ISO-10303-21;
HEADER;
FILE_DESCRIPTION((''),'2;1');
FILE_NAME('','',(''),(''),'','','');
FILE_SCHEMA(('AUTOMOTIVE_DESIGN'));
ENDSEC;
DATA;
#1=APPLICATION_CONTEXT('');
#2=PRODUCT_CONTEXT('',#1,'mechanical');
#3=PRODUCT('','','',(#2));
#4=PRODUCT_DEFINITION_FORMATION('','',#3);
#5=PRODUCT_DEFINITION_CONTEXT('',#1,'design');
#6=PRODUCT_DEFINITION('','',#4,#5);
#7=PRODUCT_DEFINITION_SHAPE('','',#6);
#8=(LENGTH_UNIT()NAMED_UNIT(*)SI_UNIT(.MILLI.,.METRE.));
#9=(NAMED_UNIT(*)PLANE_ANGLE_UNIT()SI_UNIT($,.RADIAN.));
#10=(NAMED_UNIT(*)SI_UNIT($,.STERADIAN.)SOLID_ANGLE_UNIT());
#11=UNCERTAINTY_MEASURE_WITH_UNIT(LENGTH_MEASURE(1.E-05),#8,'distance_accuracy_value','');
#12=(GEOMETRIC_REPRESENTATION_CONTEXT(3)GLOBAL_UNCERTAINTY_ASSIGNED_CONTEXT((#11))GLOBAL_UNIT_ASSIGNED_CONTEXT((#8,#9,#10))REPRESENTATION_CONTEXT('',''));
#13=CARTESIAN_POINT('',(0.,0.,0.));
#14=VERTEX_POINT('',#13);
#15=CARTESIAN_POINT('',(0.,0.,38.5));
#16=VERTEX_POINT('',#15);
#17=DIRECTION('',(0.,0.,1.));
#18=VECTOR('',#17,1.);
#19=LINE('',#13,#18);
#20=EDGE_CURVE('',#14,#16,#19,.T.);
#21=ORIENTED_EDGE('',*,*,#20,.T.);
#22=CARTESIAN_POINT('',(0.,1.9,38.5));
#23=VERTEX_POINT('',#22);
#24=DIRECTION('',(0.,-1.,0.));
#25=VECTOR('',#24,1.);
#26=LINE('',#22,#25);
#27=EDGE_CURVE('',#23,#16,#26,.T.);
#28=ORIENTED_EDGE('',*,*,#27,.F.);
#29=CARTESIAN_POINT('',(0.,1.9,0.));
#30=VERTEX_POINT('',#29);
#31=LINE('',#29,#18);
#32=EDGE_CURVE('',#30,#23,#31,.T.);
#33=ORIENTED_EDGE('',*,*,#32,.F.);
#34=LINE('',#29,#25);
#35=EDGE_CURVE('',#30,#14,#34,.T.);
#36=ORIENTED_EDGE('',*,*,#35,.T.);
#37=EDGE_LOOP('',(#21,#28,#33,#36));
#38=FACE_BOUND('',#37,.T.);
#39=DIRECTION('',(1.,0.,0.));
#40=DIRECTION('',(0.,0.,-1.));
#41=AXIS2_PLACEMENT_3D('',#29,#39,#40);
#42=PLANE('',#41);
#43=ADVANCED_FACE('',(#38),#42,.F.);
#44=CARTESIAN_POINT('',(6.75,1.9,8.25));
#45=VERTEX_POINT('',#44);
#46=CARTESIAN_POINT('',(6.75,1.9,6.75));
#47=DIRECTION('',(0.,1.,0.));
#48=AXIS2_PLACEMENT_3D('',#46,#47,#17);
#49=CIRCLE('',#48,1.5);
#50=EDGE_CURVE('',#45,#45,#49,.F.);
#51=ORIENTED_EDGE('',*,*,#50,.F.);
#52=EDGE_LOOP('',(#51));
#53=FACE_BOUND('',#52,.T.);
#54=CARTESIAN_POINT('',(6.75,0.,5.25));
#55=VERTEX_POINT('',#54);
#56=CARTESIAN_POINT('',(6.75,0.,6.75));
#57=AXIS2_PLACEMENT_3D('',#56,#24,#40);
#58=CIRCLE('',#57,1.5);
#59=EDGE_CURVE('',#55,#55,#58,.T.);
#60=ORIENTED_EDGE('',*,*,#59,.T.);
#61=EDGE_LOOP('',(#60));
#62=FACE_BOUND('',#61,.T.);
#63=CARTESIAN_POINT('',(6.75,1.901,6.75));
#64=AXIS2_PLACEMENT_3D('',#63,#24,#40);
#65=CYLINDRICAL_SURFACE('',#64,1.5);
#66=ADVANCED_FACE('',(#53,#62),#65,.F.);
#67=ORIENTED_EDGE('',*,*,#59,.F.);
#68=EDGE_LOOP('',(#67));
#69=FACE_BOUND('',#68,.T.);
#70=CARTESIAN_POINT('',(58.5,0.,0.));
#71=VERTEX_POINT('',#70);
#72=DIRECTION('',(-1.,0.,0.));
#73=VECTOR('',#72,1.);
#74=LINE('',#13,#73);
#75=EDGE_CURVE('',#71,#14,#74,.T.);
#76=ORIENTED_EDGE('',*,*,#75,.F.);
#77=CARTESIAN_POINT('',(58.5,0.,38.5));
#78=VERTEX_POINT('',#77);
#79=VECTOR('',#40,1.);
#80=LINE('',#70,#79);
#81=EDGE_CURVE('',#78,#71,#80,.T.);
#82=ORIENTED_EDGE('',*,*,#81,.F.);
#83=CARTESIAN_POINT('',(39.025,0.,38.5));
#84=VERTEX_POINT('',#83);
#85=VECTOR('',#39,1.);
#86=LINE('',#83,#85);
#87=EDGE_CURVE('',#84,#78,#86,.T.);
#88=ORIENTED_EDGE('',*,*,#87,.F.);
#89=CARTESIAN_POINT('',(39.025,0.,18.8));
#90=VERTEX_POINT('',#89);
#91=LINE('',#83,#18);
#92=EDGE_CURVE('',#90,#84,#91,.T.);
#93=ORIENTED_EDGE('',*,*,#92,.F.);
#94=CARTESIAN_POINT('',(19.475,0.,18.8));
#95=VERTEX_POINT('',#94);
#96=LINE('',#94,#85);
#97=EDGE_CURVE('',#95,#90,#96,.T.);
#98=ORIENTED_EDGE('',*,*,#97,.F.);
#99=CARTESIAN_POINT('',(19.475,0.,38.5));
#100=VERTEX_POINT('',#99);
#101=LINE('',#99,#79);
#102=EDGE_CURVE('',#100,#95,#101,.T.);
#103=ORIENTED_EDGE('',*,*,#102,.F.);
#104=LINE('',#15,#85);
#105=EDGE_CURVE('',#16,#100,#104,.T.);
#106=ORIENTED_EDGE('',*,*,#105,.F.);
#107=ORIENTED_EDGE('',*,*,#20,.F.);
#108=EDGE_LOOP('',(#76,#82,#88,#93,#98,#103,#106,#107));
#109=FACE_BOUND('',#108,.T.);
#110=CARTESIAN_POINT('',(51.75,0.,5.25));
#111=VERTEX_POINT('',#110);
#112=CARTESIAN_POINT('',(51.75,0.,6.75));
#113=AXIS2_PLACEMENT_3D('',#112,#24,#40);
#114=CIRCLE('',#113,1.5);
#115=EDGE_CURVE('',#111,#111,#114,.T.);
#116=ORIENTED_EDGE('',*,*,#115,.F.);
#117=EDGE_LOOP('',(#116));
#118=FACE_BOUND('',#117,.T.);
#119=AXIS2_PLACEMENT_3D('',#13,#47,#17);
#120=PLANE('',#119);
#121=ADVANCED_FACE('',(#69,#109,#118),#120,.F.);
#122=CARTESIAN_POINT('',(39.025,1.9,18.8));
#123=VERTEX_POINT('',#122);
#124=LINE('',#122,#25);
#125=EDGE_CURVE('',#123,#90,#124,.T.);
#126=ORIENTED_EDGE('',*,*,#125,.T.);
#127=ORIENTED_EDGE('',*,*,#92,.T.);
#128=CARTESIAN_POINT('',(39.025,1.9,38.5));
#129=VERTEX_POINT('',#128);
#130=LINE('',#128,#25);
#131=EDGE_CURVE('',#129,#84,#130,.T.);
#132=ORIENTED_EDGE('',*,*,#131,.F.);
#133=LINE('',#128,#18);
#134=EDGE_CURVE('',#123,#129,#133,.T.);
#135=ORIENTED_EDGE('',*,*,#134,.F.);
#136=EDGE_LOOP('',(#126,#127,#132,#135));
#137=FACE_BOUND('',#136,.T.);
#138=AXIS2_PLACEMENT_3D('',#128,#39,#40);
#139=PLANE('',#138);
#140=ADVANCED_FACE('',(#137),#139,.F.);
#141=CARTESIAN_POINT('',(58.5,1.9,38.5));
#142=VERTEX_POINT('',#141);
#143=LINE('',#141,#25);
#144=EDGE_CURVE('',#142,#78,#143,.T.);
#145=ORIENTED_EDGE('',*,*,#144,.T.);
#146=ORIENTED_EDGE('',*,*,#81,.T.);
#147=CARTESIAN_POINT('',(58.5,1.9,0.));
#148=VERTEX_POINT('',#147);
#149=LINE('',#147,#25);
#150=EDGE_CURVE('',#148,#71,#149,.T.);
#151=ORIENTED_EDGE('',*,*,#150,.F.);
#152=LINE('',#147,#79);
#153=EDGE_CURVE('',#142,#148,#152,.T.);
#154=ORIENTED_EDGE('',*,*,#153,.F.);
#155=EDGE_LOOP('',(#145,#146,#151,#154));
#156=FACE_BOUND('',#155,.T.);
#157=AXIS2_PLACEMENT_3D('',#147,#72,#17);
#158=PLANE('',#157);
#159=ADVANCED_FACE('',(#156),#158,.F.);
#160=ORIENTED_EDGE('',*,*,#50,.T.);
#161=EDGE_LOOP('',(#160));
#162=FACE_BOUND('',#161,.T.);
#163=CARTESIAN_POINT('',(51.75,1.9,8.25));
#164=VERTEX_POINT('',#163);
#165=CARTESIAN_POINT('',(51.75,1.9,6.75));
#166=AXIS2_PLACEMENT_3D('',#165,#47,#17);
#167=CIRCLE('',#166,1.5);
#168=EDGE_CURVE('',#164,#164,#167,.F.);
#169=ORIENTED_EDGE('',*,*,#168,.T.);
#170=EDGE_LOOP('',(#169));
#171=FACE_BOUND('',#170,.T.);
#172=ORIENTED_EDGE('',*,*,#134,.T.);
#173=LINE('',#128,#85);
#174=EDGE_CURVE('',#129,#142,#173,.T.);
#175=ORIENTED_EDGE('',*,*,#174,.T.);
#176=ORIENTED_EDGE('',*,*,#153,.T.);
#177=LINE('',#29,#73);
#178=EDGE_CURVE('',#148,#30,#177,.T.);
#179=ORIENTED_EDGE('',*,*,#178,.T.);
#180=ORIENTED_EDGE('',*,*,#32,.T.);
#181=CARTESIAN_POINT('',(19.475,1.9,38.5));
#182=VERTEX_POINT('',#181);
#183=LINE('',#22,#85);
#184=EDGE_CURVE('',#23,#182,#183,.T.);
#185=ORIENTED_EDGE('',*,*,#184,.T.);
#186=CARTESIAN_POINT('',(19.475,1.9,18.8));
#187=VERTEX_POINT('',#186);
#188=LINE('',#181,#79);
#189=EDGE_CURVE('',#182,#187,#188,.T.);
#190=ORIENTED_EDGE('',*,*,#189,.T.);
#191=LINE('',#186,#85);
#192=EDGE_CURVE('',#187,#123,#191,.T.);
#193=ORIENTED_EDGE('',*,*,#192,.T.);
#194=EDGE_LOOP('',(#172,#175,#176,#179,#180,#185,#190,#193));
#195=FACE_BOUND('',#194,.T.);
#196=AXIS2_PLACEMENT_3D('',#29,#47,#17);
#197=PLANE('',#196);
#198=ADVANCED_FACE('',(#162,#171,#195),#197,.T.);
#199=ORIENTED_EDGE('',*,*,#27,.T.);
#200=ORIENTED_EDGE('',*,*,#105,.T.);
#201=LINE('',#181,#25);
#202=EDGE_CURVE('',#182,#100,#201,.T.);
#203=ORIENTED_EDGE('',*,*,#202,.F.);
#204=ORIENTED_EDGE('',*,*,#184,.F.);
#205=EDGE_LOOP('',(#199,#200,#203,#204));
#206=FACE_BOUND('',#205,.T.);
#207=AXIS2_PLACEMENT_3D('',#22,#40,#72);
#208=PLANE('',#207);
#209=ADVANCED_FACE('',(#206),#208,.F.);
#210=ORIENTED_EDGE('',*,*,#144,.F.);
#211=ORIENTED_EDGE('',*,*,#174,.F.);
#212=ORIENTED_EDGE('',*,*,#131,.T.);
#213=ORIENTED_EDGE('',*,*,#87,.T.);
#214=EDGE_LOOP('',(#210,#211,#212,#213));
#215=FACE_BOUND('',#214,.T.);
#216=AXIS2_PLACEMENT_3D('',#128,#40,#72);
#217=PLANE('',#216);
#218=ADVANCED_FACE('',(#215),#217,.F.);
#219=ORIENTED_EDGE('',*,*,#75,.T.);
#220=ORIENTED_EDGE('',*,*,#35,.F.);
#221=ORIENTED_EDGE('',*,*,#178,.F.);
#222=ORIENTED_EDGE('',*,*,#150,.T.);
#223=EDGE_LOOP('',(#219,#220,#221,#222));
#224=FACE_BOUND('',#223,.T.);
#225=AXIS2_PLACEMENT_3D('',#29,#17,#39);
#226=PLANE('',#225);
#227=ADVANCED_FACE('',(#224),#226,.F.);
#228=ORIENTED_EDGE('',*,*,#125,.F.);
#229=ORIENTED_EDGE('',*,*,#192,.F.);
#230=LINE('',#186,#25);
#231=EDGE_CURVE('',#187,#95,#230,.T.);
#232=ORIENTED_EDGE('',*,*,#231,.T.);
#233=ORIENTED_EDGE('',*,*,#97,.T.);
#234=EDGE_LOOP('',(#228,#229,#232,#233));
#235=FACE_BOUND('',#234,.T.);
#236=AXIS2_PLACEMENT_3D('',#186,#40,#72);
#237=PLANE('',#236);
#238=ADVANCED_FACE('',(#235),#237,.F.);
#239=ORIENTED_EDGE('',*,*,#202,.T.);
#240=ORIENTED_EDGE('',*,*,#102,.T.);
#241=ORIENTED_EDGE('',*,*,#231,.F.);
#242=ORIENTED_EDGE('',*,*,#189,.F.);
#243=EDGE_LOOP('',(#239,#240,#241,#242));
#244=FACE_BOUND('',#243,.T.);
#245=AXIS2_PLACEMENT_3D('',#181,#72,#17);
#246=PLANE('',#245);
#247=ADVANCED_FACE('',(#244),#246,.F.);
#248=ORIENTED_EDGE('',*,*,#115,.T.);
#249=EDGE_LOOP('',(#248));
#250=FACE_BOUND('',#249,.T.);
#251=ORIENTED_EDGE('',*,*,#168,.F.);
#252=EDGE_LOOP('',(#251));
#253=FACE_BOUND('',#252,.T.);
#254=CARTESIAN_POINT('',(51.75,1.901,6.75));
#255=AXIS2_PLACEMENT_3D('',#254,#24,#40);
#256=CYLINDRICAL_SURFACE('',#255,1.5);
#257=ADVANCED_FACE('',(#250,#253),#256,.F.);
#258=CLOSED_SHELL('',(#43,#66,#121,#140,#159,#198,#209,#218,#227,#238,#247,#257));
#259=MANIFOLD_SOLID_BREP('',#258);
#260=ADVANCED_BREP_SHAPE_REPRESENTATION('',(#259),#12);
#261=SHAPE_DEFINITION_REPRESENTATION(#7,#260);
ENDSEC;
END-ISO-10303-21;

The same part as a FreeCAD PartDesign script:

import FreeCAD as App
import Part
import Sketcher

V = App.Vector

doc = App.newDocument("Part")
body = doc.addObject("PartDesign::Body", "Body")

sketch1 = body.newObject("Sketcher::SketchObject", "Sketch")
sketch1.AttachmentSupport = (doc.getObject("XZ_Plane"), [""])
sketch1.MapMode = "FlatFace"
sketch1.addGeometry([
    Part.LineSegment(V(58.5, 0, 0), V(0, 0, 0)),
    Part.LineSegment(V(0, 0, 0), V(0, 38.5, 0)),
    Part.LineSegment(V(0, 38.5, 0), V(19.475, 38.5, 0)),
    Part.LineSegment(V(19.475, 38.5, 0), V(19.475, 18.8, 0)),
    Part.LineSegment(V(19.475, 18.8, 0), V(39.025, 18.8, 0)),
    Part.LineSegment(V(39.025, 18.8, 0), V(39.025, 38.5, 0)),
    Part.LineSegment(V(39.025, 38.5, 0), V(58.5, 38.5, 0)),
    Part.LineSegment(V(58.5, 38.5, 0), V(58.5, 0, 0)),
], False)
sketch1.addConstraint([
    Sketcher.Constraint("Coincident", 0, 2, 1, 1),
    Sketcher.Constraint("Coincident", 1, 2, 2, 1),
    Sketcher.Constraint("Coincident", 2, 2, 3, 1),
    Sketcher.Constraint("Coincident", 3, 2, 4, 1),
    Sketcher.Constraint("Coincident", 4, 2, 5, 1),
    Sketcher.Constraint("Coincident", 5, 2, 6, 1),
    Sketcher.Constraint("Coincident", 6, 2, 7, 1),
    Sketcher.Constraint("Coincident", 7, 2, 0, 1),
    Sketcher.Constraint("Horizontal", 0),
    Sketcher.Constraint("Vertical", 1),
    Sketcher.Constraint("Horizontal", 2),
    Sketcher.Constraint("Vertical", 3),
    Sketcher.Constraint("Horizontal", 4),
    Sketcher.Constraint("Vertical", 5),
    Sketcher.Constraint("Horizontal", 6),
    Sketcher.Constraint("Vertical", 7),
    Sketcher.Constraint("Coincident", 0, 2, -1, 1),
    Sketcher.Constraint("Horizontal", 2, 2, 5, 2),
    Sketcher.Constraint("Equal", 2, 6),
    Sketcher.Constraint("DistanceX", 0, 2, 0, 1, 58.5),
    Sketcher.Constraint("DistanceY", 1, 1, 1, 2, 38.5),
    Sketcher.Constraint("DistanceY", 3, 2, 3, 1, 19.7),
    Sketcher.Constraint("DistanceX", 4, 1, 4, 2, 19.55),
])
pad1 = body.newObject("PartDesign::Pad", "Pad")
pad1.Profile = sketch1
pad1.Length = 1.9
pad1.Reversed = True

sketch2 = body.newObject("Sketcher::SketchObject", "Sketch001")
sketch2.AttachmentSupport = (doc.getObject("XZ_Plane"), [""])
sketch2.MapMode = "FlatFace"
sketch2.addGeometry(Part.Circle(V(51.75, 6.75, 0), V(0, 0, 1), 1.5), False)
sketch2.addConstraint([
    Sketcher.Constraint("Diameter", 0, 3.0),
    Sketcher.Constraint("DistanceX", -1, 1, 0, 3, 51.75),
    Sketcher.Constraint("DistanceY", -1, 1, 0, 3, 6.75),
])
pocket1 = body.newObject("PartDesign::Pocket", "Pocket")
pocket1.Profile = sketch2
pocket1.Type = "UpToFirst"

sketch3 = body.newObject("Sketcher::SketchObject", "Sketch002")
sketch3.AttachmentSupport = (doc.getObject("XZ_Plane"), [""])
sketch3.MapMode = "FlatFace"
sketch3.addGeometry(Part.Circle(V(6.75, 6.75, 0), V(0, 0, 1), 1.5), False)
sketch3.addConstraint([
    Sketcher.Constraint("Diameter", 0, 3.0),
    Sketcher.Constraint("DistanceX", -1, 1, 0, 3, 6.75),
    Sketcher.Constraint("DistanceY", -1, 1, 0, 3, 6.75),
])
pocket2 = body.newObject("PartDesign::Pocket", "Pocket001")
pocket2.Profile = sketch3
pocket2.Type = "UpToFirst"

doc.recompute()
